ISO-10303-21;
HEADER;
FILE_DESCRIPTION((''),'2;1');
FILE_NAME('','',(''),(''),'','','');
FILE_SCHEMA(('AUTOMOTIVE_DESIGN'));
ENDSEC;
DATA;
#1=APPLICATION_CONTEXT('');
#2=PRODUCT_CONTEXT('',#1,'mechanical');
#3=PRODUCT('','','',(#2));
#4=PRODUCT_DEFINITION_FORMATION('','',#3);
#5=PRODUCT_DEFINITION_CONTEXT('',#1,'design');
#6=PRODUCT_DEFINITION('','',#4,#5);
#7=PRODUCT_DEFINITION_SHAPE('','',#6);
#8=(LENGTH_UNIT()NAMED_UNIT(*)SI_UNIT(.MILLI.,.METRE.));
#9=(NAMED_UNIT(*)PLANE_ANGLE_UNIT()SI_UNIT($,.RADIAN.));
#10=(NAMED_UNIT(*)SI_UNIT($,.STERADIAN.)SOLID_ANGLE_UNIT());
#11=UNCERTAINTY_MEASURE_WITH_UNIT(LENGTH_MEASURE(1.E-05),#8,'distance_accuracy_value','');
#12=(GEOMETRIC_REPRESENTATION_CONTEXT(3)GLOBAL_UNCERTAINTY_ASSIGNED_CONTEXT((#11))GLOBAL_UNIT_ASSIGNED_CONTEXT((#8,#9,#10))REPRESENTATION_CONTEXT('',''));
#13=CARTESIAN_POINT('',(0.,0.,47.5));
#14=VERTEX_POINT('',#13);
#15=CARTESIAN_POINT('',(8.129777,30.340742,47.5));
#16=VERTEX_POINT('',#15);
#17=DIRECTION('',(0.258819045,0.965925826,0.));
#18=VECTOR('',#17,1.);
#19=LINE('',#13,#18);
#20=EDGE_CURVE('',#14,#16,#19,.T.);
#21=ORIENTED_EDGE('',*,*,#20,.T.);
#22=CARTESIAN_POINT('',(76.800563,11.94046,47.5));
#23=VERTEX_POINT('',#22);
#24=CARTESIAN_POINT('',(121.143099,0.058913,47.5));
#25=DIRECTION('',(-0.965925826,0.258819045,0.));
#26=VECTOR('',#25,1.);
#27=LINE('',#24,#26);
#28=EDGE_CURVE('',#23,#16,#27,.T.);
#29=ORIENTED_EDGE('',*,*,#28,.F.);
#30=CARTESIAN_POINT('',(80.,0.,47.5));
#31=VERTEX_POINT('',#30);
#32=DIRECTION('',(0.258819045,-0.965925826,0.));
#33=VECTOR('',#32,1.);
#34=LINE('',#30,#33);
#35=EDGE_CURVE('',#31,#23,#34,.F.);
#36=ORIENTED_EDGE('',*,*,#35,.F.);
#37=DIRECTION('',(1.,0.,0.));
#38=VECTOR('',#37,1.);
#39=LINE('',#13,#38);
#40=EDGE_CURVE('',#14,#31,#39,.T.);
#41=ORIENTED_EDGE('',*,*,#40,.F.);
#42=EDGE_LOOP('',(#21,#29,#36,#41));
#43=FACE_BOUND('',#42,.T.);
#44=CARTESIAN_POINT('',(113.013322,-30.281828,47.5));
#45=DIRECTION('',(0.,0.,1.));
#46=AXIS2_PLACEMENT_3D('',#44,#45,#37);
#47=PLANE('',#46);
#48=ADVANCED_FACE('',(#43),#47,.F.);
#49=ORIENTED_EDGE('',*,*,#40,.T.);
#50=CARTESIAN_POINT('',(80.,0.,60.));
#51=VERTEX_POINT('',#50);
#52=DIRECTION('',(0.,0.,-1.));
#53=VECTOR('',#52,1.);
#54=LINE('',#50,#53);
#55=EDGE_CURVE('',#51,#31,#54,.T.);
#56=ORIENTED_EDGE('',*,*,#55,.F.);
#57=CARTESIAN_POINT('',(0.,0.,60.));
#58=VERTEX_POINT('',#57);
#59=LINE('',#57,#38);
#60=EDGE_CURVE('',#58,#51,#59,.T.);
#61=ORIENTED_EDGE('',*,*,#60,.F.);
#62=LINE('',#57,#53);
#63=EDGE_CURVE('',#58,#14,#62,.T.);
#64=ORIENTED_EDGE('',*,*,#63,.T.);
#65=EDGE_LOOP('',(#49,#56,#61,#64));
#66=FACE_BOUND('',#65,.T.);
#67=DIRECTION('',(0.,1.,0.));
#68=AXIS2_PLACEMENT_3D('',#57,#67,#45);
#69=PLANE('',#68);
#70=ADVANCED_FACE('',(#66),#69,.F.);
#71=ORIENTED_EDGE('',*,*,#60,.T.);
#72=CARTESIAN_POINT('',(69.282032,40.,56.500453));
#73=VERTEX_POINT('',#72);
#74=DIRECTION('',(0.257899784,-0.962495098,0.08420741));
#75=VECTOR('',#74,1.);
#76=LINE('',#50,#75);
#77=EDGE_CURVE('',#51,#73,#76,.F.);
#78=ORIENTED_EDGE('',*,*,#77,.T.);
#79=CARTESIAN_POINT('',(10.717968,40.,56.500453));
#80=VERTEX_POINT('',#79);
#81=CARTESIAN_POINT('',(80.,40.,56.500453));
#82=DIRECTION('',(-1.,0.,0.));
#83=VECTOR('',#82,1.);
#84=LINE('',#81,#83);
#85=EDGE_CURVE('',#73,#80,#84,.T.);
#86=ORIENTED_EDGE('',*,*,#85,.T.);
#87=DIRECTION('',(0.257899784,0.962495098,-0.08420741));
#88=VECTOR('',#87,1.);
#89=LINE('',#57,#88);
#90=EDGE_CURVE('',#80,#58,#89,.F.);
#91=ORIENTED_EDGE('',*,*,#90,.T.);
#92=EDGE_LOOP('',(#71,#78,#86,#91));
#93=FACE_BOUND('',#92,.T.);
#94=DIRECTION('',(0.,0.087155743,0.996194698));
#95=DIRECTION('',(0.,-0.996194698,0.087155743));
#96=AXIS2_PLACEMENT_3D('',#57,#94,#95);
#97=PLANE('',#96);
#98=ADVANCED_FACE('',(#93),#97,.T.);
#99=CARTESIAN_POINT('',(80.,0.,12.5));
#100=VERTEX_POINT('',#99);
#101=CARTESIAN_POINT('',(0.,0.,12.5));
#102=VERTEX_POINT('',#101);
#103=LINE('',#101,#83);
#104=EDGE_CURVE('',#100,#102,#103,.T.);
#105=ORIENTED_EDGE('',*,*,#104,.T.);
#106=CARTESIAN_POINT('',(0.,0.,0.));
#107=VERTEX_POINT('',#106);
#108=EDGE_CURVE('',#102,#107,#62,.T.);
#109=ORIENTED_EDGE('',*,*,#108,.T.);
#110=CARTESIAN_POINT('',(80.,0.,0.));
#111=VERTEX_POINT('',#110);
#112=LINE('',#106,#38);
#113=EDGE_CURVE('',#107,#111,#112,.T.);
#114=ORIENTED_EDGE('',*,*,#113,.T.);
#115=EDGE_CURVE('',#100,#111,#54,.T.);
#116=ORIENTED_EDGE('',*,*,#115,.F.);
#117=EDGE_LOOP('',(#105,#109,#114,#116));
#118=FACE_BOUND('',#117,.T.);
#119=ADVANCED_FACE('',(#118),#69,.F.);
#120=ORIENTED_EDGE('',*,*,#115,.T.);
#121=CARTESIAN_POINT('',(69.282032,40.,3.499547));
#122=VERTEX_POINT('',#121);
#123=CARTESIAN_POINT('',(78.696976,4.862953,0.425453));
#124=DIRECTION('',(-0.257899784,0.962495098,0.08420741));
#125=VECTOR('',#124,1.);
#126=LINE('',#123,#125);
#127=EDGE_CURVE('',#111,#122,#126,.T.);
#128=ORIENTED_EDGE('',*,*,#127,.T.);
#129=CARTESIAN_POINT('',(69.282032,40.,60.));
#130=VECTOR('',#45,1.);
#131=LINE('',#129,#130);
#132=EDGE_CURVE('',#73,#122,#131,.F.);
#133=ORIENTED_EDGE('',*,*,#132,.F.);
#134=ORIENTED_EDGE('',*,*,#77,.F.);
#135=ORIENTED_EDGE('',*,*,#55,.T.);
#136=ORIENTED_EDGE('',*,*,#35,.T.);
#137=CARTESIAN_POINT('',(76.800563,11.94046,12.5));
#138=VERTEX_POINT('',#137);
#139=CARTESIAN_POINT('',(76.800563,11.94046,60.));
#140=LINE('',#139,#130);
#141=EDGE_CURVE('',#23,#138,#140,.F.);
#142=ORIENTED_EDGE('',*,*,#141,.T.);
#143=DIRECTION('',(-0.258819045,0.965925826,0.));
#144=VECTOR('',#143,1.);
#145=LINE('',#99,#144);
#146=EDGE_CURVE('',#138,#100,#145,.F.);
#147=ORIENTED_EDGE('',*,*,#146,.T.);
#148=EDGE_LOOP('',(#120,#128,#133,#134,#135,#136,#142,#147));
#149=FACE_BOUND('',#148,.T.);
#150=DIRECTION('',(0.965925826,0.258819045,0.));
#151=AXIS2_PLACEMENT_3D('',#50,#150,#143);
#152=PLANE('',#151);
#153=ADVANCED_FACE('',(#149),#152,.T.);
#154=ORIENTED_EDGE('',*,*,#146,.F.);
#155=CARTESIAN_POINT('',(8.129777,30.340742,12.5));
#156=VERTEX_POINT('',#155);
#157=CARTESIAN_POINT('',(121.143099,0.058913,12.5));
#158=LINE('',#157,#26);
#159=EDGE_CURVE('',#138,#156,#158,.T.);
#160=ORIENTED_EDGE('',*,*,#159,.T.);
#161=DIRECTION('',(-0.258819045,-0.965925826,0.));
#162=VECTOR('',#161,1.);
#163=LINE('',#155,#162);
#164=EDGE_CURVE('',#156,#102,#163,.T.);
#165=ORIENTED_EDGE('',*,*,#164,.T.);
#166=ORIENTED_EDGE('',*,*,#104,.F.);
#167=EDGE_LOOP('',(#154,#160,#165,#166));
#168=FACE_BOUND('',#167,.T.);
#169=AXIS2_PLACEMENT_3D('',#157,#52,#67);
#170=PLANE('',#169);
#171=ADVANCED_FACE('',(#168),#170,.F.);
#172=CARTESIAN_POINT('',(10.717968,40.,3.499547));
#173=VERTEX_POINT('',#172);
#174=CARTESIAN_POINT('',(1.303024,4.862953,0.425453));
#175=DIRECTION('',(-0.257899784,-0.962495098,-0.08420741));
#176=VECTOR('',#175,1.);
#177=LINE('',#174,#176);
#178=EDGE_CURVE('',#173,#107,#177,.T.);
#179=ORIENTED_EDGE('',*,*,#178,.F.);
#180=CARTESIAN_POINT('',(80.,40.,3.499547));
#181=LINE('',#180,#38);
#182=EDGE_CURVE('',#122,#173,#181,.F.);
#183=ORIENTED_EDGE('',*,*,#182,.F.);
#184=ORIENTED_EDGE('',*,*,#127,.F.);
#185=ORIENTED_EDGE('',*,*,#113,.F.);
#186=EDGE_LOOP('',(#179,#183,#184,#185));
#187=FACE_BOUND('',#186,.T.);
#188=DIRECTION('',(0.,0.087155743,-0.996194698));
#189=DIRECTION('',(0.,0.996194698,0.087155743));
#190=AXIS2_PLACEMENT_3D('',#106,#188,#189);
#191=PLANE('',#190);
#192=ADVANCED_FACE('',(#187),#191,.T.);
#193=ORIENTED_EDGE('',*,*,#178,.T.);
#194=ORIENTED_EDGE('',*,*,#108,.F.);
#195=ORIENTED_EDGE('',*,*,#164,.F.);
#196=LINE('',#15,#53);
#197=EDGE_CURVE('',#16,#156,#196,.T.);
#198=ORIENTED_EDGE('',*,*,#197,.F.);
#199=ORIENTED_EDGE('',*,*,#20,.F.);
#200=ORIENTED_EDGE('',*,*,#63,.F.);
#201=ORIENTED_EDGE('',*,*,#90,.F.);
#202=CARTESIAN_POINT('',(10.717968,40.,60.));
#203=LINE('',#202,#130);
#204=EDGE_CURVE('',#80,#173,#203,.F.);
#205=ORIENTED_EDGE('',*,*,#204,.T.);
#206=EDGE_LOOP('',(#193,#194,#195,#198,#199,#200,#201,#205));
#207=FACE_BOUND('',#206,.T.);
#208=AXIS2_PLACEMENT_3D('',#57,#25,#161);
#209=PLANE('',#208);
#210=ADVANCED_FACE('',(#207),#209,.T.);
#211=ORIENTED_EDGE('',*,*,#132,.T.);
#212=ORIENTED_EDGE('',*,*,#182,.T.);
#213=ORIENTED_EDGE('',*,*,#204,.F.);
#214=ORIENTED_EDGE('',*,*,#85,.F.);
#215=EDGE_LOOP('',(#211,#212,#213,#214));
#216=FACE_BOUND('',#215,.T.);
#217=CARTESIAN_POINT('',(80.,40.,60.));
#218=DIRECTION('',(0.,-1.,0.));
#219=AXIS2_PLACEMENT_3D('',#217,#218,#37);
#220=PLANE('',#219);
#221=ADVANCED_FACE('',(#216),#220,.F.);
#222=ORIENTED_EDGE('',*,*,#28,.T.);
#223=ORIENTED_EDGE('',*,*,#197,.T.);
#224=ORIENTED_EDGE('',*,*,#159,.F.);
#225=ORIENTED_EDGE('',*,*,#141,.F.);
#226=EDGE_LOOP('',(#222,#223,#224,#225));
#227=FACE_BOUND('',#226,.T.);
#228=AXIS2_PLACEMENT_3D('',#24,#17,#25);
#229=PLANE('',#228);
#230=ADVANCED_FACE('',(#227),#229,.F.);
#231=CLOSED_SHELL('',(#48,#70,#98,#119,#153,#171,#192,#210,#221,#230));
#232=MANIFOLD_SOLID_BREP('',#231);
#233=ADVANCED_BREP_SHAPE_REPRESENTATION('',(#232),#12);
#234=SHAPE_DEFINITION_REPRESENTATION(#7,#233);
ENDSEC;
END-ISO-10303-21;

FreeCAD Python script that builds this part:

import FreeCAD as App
import Part
import Sketcher
from FreeCAD import Vector


def faces_at(feature, points):
    """Names of the faces that lie closest to the given points."""
    faces = feature.Shape.Faces
    near = lambda p: min(range(len(faces)), key=lambda i: faces[i].distToShape(Part.Vertex(*p))[0])
    return sorted({f"Face{near(p) + 1}" for p in points})


def add_polygon(sketch, points):
    """Adds a closed chain of lines whose ends are joined by coincident constraints."""
    first, n = sketch.GeometryCount, len(points)
    for a, b in zip(points, points[1:] + points[:1]):
        sketch.addGeometry(Part.LineSegment(App.Vector(*a, 0), App.Vector(*b, 0)), False)
    for i in range(n):
        sketch.addConstraint(Sketcher.Constraint("Coincident", first + i, 2, first + (i + 1) % n, 1))

doc = App.newDocument("Part")
body = doc.addObject("PartDesign::Body", "Body")

sketch1 = body.newObject("Sketcher::SketchObject", "Sketch")
sketch1.AttachmentSupport = (doc.getObject("XY_Plane"), [""])
sketch1.MapMode = "FlatFace"
add_polygon(sketch1, [(0, 40), (0, 0), (80, 0), (80, 40)])
sketch1.addConstraint([
    Sketcher.Constraint("Vertical", 0),
    Sketcher.Constraint("Horizontal", 1),
    Sketcher.Constraint("Vertical", 2),
    Sketcher.Constraint("Horizontal", 3),
    Sketcher.Constraint("Coincident", 0, 2, -1, 1),
    Sketcher.Constraint("DistanceX", 1, 1, 1, 2, 80.0),
    Sketcher.Constraint("DistanceY", 0, 2, 0, 1, 40.0),
])
pad1 = body.newObject("PartDesign::Pad", "Pad")
pad1.Profile = sketch1
pad1.Length = 60
doc.recompute()

draft = body.newObject("PartDesign::Draft", "Draft")
draft.Base = (pad1, faces_at(pad1, [(80, 20, 30), (0, 20, 30)]))
draft.NeutralPlane = (doc.getObject("XZ_Plane"), [""])
draft.Angle = 15
draft.Reversed = True
doc.recompute()

draft2 = body.newObject("PartDesign::Draft", "Draft001")
draft2.Base = (draft, faces_at(draft, [(40, 20, 0), (40, 20, 60)]))
draft2.NeutralPlane = (doc.getObject("XZ_Plane"), [""])
draft2.Angle = 5
draft2.Reversed = True

sketch2 = body.newObject("Sketcher::SketchObject", "Sketch001")
sketch2.Placement = App.Placement(Vector(0, 0, 0), App.Rotation(Vector(0, 0, 1), Vector(0.258819045, 0.965925826, 0), Vector(-0.965925826, 0.258819045, 0), "ZXY"))
add_polygon(sketch2, [(12, 31), (12, 0), (48, 0), (48, 31)])
sketch2.addConstraint([
    Sketcher.Constraint("Vertical", 0),
    Sketcher.Constraint("Horizontal", 1),
    Sketcher.Constraint("Vertical", 2),
    Sketcher.Constraint("Horizontal", 3),
    Sketcher.Constraint("PointOnObject", 0, 2, -1),
    Sketcher.Constraint("DistanceX", 1, 1, 1, 2, 35.0),
    Sketcher.Constraint("DistanceX", -1, 1, 0, 2, 12.5),
    Sketcher.Constraint("DistanceY", 0, 2, 0, 1, 31.411047),
])
pocket1 = body.newObject("PartDesign::Pocket", "Pocket")
pocket1.Profile = sketch2
pocket1.Length = 117

doc.recompute()
